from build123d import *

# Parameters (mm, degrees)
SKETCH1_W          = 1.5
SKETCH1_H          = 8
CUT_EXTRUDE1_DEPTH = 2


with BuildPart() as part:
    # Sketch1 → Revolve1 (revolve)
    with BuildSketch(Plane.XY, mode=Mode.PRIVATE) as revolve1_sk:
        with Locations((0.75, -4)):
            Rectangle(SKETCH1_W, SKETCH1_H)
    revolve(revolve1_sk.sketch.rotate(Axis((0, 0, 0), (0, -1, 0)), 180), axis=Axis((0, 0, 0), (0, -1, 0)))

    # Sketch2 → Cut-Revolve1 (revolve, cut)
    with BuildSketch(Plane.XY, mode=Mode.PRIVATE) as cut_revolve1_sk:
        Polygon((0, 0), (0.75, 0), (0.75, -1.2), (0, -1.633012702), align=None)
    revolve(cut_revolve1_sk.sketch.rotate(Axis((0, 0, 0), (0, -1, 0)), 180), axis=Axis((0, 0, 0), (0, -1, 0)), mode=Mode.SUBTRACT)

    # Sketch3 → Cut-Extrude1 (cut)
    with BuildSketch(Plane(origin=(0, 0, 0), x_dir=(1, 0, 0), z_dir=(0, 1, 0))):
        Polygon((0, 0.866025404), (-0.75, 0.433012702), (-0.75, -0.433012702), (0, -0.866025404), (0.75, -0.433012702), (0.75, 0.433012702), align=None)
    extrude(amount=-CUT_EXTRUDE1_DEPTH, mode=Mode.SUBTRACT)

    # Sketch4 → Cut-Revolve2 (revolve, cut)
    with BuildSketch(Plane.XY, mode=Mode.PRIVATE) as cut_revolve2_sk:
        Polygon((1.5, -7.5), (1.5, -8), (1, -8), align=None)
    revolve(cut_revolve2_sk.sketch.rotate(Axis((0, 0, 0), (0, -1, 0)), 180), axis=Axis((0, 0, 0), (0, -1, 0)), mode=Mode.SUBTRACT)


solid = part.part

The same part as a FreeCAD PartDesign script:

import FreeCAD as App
import Part
import Sketcher

V = App.Vector
Q = App.Units.Quantity

doc = App.newDocument("Part")
body = doc.addObject("PartDesign::Body", "Body")

# Sketch on XY plane
sketch1 = body.newObject("Sketcher::SketchObject", "Sketch")
sketch1.AttachmentSupport = (doc.getObject("XY_Plane"), [""])
sketch1.MapMode = "FlatFace"
sketch1.addGeometry(Part.LineSegment(V(0, 0, 0), V(0, -8, 0)), False)
sketch1.addGeometry(Part.LineSegment(V(0, -8, 0), V(1.5, -8, 0)), False)
sketch1.addGeometry(Part.LineSegment(V(1.5, -8, 0), V(1.5, 0, 0)), False)
sketch1.addGeometry(Part.LineSegment(V(1.5, 0, 0), V(0, 0, 0)), False)
sketch1.addConstraint(Sketcher.Constraint("Coincident", 0, 2, 1, 1))
sketch1.addConstraint(Sketcher.Constraint("Coincident", 1, 2, 2, 1))
sketch1.addConstraint(Sketcher.Constraint("Coincident", 2, 2, 3, 1))
sketch1.addConstraint(Sketcher.Constraint("Coincident", 3, 2, 0, 1))
sketch1.addConstraint(Sketcher.Constraint("Vertical", 0))
sketch1.addConstraint(Sketcher.Constraint("Horizontal", 1))
sketch1.addConstraint(Sketcher.Constraint("Vertical", 2))
sketch1.addConstraint(Sketcher.Constraint("Horizontal", 3))
sketch1.addConstraint(Sketcher.Constraint("Coincident", 3, 2, -1, 1))
sketch1.addConstraint(Sketcher.Constraint("DistanceY", 0, 2, 0, 1, Q("8 mm")))
sketch1.addConstraint(Sketcher.Constraint("DistanceX", 1, 1, 1, 2, Q("1.5 mm")))
revolution = body.newObject("PartDesign::Revolution", "Revolution")
revolution.Profile = sketch1
revolution.ReferenceAxis = (sketch1, ["V_Axis"])
revolution.Angle = 360

# Sketch on XY plane
sketch2 = body.newObject("Sketcher::SketchObject", "Sketch001")
sketch2.AttachmentSupport = (doc.getObject("XY_Plane"), [""])
sketch2.MapMode = "FlatFace"
sketch2.addGeometry(Part.LineSegment(V(0.75, 0, 0), V(0, 0, 0)), False)
sketch2.addGeometry(Part.LineSegment(V(0, 0, 0), V(0, -1.633013, 0)), False)
sketch2.addGeometry(Part.LineSegment(V(0, -1.633013, 0), V(0.75, -1.2, 0)), False)
sketch2.addGeometry(Part.LineSegment(V(0.75, -1.2, 0), V(0.75, 0, 0)), False)
sketch2.addConstraint(Sketcher.Constraint("Coincident", 0, 2, 1, 1))
sketch2.addConstraint(Sketcher.Constraint("Coincident", 1, 2, 2, 1))
sketch2.addConstraint(Sketcher.Constraint("Coincident", 2, 2, 3, 1))
sketch2.addConstraint(Sketcher.Constraint("Coincident", 3, 2, 0, 1))
sketch2.addConstraint(Sketcher.Constraint("Horizontal", 0))
sketch2.addConstraint(Sketcher.Constraint("Vertical", 1))
sketch2.addConstraint(Sketcher.Constraint("Vertical", 3))
sketch2.addConstraint(Sketcher.Constraint("Coincident", 0, 2, -1, 1))
sketch2.addConstraint(Sketcher.Constraint("Angle", 2, Q("30 deg")))
sketch2.addConstraint(Sketcher.Constraint("DistanceY", 3, 1, 3, 2, Q("1.2 mm")))
sketch2.addConstraint(Sketcher.Constraint("DistanceX", 0, 2, 0, 1, Q("0.75 mm")))
groove = body.newObject("PartDesign::Groove", "Groove")
groove.Profile = sketch2
groove.ReferenceAxis = (sketch2, ["V_Axis"])
groove.Angle = 360

# Sketch on XZ plane
sketch3 = body.newObject("Sketcher::SketchObject", "Sketch002")
sketch3.AttachmentSupport = (doc.getObject("XZ_Plane"), [""])
sketch3.MapMode = "FlatFace"
sketch3.addGeometry(Part.LineSegment(V(0, -0.866025, 0), V(-0.75, -0.433013, 0)), False)
sketch3.addGeometry(Part.LineSegment(V(-0.75, -0.433013, 0), V(-0.75, 0.433013, 0)), False)
sketch3.addGeometry(Part.LineSegment(V(-0.75, 0.433013, 0), V(0, 0.866025, 0)), False)
sketch3.addGeometry(Part.LineSegment(V(0, 0.866025, 0), V(0.75, 0.433013, 0)), False)
sketch3.addGeometry(Part.LineSegment(V(0.75, 0.433013, 0), V(0.75, -0.433013, 0)), False)
sketch3.addGeometry(Part.LineSegment(V(0.75, -0.433013, 0), V(0, -0.866025, 0)), False)
sketch3.addConstraint(Sketcher.Constraint("Coincident", 0, 2, 1, 1))
sketch3.addConstraint(Sketcher.Constraint("Coincident", 1, 2, 2, 1))
sketch3.addConstraint(Sketcher.Constraint("Coincident", 2, 2, 3, 1))
sketch3.addConstraint(Sketcher.Constraint("Coincident", 3, 2, 4, 1))
sketch3.addConstraint(Sketcher.Constraint("Coincident", 4, 2, 5, 1))
sketch3.addConstraint(Sketcher.Constraint("Coincident", 5, 2, 0, 1))
sketch3.addConstraint(Sketcher.Constraint("Vertical", 1))
sketch3.addConstraint(Sketcher.Constraint("Vertical", 4))
sketch3.addConstraint(Sketcher.Constraint("Symmetric", 0, 2, 3, 2, -1, 1))
sketch3.addConstraint(Sketcher.Constraint("Symmetric", 2, 2, 5, 2, -1, 1))
sketch3.addConstraint(Sketcher.Constraint("PointOnObject", 2, 2, -2))
sketch3.addConstraint(Sketcher.Constraint("Parallel", 2, 5))
sketch3.addConstraint(Sketcher.Constraint("Horizontal", 1, 2, 3, 2))
sketch3.addConstraint(Sketcher.Constraint("Angle", 0, Q("150 deg")))
sketch3.addConstraint(Sketcher.Constraint("DistanceX", 1, 2, 3, 2, Q("1.5 mm")))
sketch3.addConstraint(Sketcher.Constraint("DistanceY", 1, 1, 1, 2, Q("0.866025 mm")))
pocket1 = body.newObject("PartDesign::Pocket", "Pocket")
pocket1.Profile = sketch3
pocket1.Length = 2
pocket1.Reversed = True

# Sketch on XY plane
sketch4 = body.newObject("Sketcher::SketchObject", "Sketch003")
sketch4.AttachmentSupport = (doc.getObject("XY_Plane"), [""])
sketch4.MapMode = "FlatFace"
sketch4.addGeometry(Part.LineSegment(V(1.5, -8, 0), V(1.5, -7.5, 0)), False)
sketch4.addGeometry(Part.LineSegment(V(1.5, -7.5, 0), V(1, -8, 0)), False)
sketch4.addGeometry(Part.LineSegment(V(1, -8, 0), V(1.5, -8, 0)), False)
sketch4.addConstraint(Sketcher.Constraint("Coincident", 0, 2, 1, 1))
sketch4.addConstraint(Sketcher.Constraint("Coincident", 1, 2, 2, 1))
sketch4.addConstraint(Sketcher.Constraint("Coincident", 2, 2, 0, 1))
sketch4.addConstraint(Sketcher.Constraint("Vertical", 0))
sketch4.addConstraint(Sketcher.Constraint("Horizontal", 2))
sketch4.addConstraint(Sketcher.Constraint("Equal", 2, 0))
sketch4.addConstraint(Sketcher.Constraint("DistanceX", 2, 1, 2, 2, Q("0.5 mm")))
sketch4.addConstraint(Sketcher.Constraint("DistanceX", -1, 1, 1, 2, Q("1 mm")))
sketch4.addConstraint(Sketcher.Constraint("DistanceY", 1, 2, -1, 1, Q("8 mm")))
groove2 = body.newObject("PartDesign::Groove", "Groove001")
groove2.Profile = sketch4
groove2.ReferenceAxis = (sketch4, ["V_Axis"])
groove2.Angle = 360

doc.recompute()
